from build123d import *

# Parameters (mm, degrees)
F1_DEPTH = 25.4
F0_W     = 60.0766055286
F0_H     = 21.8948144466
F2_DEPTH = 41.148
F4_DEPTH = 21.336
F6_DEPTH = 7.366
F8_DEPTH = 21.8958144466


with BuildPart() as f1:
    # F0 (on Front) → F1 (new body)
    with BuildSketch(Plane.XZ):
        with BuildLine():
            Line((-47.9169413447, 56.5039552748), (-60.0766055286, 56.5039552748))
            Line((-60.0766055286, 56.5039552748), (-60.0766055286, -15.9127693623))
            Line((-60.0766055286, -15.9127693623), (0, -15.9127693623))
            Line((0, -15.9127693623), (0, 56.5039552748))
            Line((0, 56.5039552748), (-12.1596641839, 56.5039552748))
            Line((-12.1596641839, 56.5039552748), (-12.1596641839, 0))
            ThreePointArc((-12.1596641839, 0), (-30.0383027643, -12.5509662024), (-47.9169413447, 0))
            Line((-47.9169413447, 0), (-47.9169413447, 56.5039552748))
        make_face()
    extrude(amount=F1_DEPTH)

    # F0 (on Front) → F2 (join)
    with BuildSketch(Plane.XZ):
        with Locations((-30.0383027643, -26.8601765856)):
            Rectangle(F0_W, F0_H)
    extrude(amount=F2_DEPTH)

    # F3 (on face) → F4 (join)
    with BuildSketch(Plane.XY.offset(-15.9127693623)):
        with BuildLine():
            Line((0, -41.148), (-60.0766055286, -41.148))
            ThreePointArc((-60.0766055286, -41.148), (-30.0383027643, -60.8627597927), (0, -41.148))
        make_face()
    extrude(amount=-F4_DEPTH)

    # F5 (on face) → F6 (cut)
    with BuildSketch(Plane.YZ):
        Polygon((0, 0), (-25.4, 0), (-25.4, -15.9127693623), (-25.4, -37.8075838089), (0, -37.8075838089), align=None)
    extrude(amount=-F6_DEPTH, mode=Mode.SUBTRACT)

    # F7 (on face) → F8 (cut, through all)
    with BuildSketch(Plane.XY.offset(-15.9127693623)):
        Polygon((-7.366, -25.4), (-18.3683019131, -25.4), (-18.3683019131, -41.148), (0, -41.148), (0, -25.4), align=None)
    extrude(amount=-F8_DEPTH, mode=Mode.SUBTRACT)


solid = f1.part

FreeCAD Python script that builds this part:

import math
import FreeCAD as App
import Part
import Sketcher
from FreeCAD import Vector
Q = App.Units.Quantity


def add_polygon(sketch, points):
    """Adds a closed chain of lines whose ends are joined by coincident constraints."""
    first, n = sketch.GeometryCount, len(points)
    for a, b in zip(points, points[1:] + points[:1]):
        sketch.addGeometry(Part.LineSegment(App.Vector(*a, 0), App.Vector(*b, 0)), False)
    for i in range(n):
        sketch.addConstraint(Sketcher.Constraint("Coincident", first + i, 2, first + (i + 1) % n, 1))

doc = App.newDocument("Part")
body = doc.addObject("PartDesign::Body", "Body")

# Sketch on XZ plane
sketch1 = doc.addObject("Sketcher::SketchObject", "Sketch")
body.addObject(sketch1)
sketch1.AttachmentSupport = (doc.XZ_Plane, [""])
sketch1.MapMode = "FlatFace"
sketch1.addGeometry(Part.LineSegment(Vector(-48, 57, 0), Vector(-60, 57, 0)), False)
sketch1.addGeometry(Part.LineSegment(Vector(-60, 57, 0), Vector(-60, -16, 0)), False)
sketch1.addGeometry(Part.LineSegment(Vector(-60, -16, 0), Vector(0, -16, 0)), False)
sketch1.addGeometry(Part.LineSegment(Vector(0, -16, 0), Vector(0, 57, 0)), False)
sketch1.addGeometry(Part.LineSegment(Vector(0, 57, 0), Vector(-12, 57, 0)), False)
sketch1.addGeometry(Part.LineSegment(Vector(-12, 57, 0), Vector(-12, 0, 0)), False)
sketch1.addGeometry(Part.ArcOfCircle(Part.Circle(Vector(-30, 6, 0), Vector(0, 0, 1), 19), math.radians(-160), math.radians(-20)), False)
sketch1.addGeometry(Part.LineSegment(Vector(-48, 0, 0), Vector(-48, 57, 0)), False)
sketch1.addConstraint(Sketcher.Constraint("Coincident", 0, 2, 1, 1))
sketch1.addConstraint(Sketcher.Constraint("Coincident", 1, 2, 2, 1))
sketch1.addConstraint(Sketcher.Constraint("Coincident", 2, 2, 3, 1))
sketch1.addConstraint(Sketcher.Constraint("Coincident", 3, 2, 4, 1))
sketch1.addConstraint(Sketcher.Constraint("Coincident", 4, 2, 5, 1))
sketch1.addConstraint(Sketcher.Constraint("Coincident", 5, 2, 6, 2))
sketch1.addConstraint(Sketcher.Constraint("Coincident", 6, 1, 7, 1))
sketch1.addConstraint(Sketcher.Constraint("Coincident", 7, 2, 0, 1))
sketch1.addConstraint(Sketcher.Constraint("Horizontal", 0))
sketch1.addConstraint(Sketcher.Constraint("Vertical", 1))
sketch1.addConstraint(Sketcher.Constraint("Horizontal", 2))
sketch1.addConstraint(Sketcher.Constraint("Vertical", 3))
sketch1.addConstraint(Sketcher.Constraint("Horizontal", 4))
sketch1.addConstraint(Sketcher.Constraint("Vertical", 5))
sketch1.addConstraint(Sketcher.Constraint("Vertical", 7))
sketch1.addConstraint(Sketcher.Constraint("PointOnObject", 2, 2, -2))
sketch1.addConstraint(Sketcher.Constraint("PointOnObject", 5, 2, -1))
sketch1.addConstraint(Sketcher.Constraint("PointOnObject", 6, 1, -1))
sketch1.addConstraint(Sketcher.Constraint("Horizontal", 0, 2, 3, 2))
sketch1.addConstraint(Sketcher.Constraint("Equal", 0, 4))
sketch1.addConstraint(Sketcher.Constraint("Radius", 6, 19.009392))
sketch1.addConstraint(Sketcher.Constraint("DistanceX", 0, 2, 0, 1, 12.159664))
sketch1.addConstraint(Sketcher.Constraint("DistanceX", 2, 1, 2, 2, 60.076606))
sketch1.addConstraint(Sketcher.Constraint("DistanceY", 1, 2, 1, 1, 72.416725))
sketch1.addConstraint(Sketcher.Constraint("DistanceY", 5, 2, 5, 1, 56.503955))
pad1 = doc.addObject("PartDesign::Pad", "Pad")
body.addObject(pad1)
pad1.Profile = sketch1
pad1.Length = Q("1 in")

# Sketch on XZ plane
sketch2 = doc.addObject("Sketcher::SketchObject", "Sketch001")
body.addObject(sketch2)
sketch2.AttachmentSupport = (doc.XZ_Plane, [""])
sketch2.MapMode = "FlatFace"
add_polygon(sketch2, [(-60, -16), (-60, -38), (0, -38), (0, -16)])  # lines 0-3
sketch2.addConstraint(Sketcher.Constraint("Vertical", 0))
sketch2.addConstraint(Sketcher.Constraint("Horizontal", 1))
sketch2.addConstraint(Sketcher.Constraint("Vertical", 2))
sketch2.addConstraint(Sketcher.Constraint("Horizontal", 3))
sketch2.addConstraint(Sketcher.Constraint("PointOnObject", 1, 2, -2))
sketch2.addConstraint(Sketcher.Constraint("DistanceX", 1, 1, 1, 2, 60.076606))
sketch2.addConstraint(Sketcher.Constraint("DistanceY", 0, 2, 0, 1, 21.894814))
sketch2.addConstraint(Sketcher.Constraint("DistanceY", 2, 2, -1, 1, 15.912769))
pad2 = doc.addObject("PartDesign::Pad", "Pad001")
body.addObject(pad2)
pad2.Profile = sketch2
pad2.Length = Q("1.62 in")

# Sketch on XY plane
sketch3 = doc.addObject("Sketcher::SketchObject", "Sketch002")
body.addObject(sketch3)
sketch3.AttachmentSupport = (doc.XY_Plane, [""])
sketch3.MapMode = "FlatFace"
sketch3.AttachmentOffset = App.Placement(Vector(0, 0, -15.912769), App.Rotation())
sketch3.addGeometry(Part.LineSegment(Vector(0, -41, 0), Vector(-60, -41, 0)), False)
sketch3.addGeometry(Part.ArcOfCircle(Part.Circle(Vector(-30, -28, 0), Vector(0, 0, 1), 33), math.radians(-157), math.radians(-23)), False)
sketch3.addConstraint(Sketcher.Constraint("Coincident", 0, 1, 1, 2))
sketch3.addConstraint(Sketcher.Constraint("Coincident", 1, 1, 0, 2))
sketch3.addConstraint(Sketcher.Constraint("Horizontal", 0))
sketch3.addConstraint(Sketcher.Constraint("PointOnObject", 0, 1, -2))
sketch3.addConstraint(Sketcher.Constraint("DistanceY", 0, 1, -1, 1, Q("1.62 in")))
sketch3.addConstraint(Sketcher.Constraint("Radius", 1, 32.741241))
sketch3.addConstraint(Sketcher.Constraint("DistanceX", 0, 2, 0, 1, 60.076606))
pad3 = doc.addObject("PartDesign::Pad", "Pad002")
body.addObject(pad3)
pad3.Profile = sketch3
pad3.Length = Q("0.84 in")
pad3.Reversed = True

# Sketch on YZ plane
sketch4 = doc.addObject("Sketcher::SketchObject", "Sketch003")
body.addObject(sketch4)
sketch4.AttachmentSupport = (doc.YZ_Plane, [""])
sketch4.MapMode = "FlatFace"
add_polygon(sketch4, [(0, 0), (-25, 0), (-25, -38), (0, -38)])  # lines 0-3
sketch4.addConstraint(Sketcher.Constraint("Horizontal", 0))
sketch4.addConstraint(Sketcher.Constraint("Vertical", 1))
sketch4.addConstraint(Sketcher.Constraint("Horizontal", 2))
sketch4.addConstraint(Sketcher.Constraint("Vertical", 3))
sketch4.addConstraint(Sketcher.Constraint("Coincident", 3, 2, -1, 1))
sketch4.addConstraint(Sketcher.Constraint("DistanceX", 0, 2, 0, 1, Q("1 in")))
sketch4.addConstraint(Sketcher.Constraint("DistanceY", 1, 2, 1, 1, 37.807584))
pocket1 = doc.addObject("PartDesign::Pocket", "Pocket")
body.addObject(pocket1)
pocket1.Profile = sketch4
pocket1.Length = Q("0.29 in")

# Sketch on XY plane
sketch5 = doc.addObject("Sketcher::SketchObject", "Sketch004")
body.addObject(sketch5)
sketch5.AttachmentSupport = (doc.XY_Plane, [""])
sketch5.MapMode = "FlatFace"
sketch5.AttachmentOffset = App.Placement(Vector(0, 0, -15.912769), App.Rotation())
add_polygon(sketch5, [(-18, -25), (-18, -41), (0, -41), (0, -25)])  # lines 0-3
sketch5.addConstraint(Sketcher.Constraint("Vertical", 0))
sketch5.addConstraint(Sketcher.Constraint("Horizontal", 1))
sketch5.addConstraint(Sketcher.Constraint("Vertical", 2))
sketch5.addConstraint(Sketcher.Constraint("Horizontal", 3))
sketch5.addConstraint(Sketcher.Constraint("PointOnObject", 1, 2, -2))
sketch5.addConstraint(Sketcher.Constraint("DistanceY", 2, 2, -1, 1, Q("1 in")))
sketch5.addConstraint(Sketcher.Constraint("DistanceY", 0, 2, 0, 1, Q("0.62 in")))
sketch5.addConstraint(Sketcher.Constraint("DistanceX", 1, 1, 1, 2, 18.368302))
pocket2 = doc.addObject("PartDesign::Pocket", "Pocket001")
body.addObject(pocket2)
pocket2.Profile = sketch5
pocket2.Type = "ThroughAll"

doc.recompute()
